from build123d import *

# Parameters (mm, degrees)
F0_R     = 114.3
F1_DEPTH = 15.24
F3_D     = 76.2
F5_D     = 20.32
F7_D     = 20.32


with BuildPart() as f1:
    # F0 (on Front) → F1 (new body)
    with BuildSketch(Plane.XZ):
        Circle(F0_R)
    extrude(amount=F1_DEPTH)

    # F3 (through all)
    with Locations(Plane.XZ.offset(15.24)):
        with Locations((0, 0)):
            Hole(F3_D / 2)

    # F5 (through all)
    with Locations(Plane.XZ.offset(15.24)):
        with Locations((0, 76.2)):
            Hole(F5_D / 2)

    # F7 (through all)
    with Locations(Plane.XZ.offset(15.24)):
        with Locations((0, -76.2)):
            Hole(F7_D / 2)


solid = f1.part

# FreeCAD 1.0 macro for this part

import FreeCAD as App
import Part
import Sketcher
Q = App.Units.Quantity

doc = App.newDocument("Part")
body = doc.addObject("PartDesign::Body", "Body")

# Sketch on XZ plane
sketch1 = doc.addObject("Sketcher::SketchObject", "Sketch")
body.addObject(sketch1)
sketch1.AttachmentSupport = (doc.XZ_Plane, [""])
sketch1.MapMode = "FlatFace"
sketch1.addGeometry(Part.Circle(App.Vector(0, 0, 0), App.Vector(0, 0, 1), 114.3), False)
sketch1.addConstraint(Sketcher.Constraint("Coincident", 0, 3, -1, 1))
sketch1.addConstraint(Sketcher.Constraint("Diameter", 0, Q("9 in")))
pad1 = doc.addObject("PartDesign::Pad", "Pad")
body.addObject(pad1)
pad1.Profile = sketch1
pad1.Length = Q("0.6 in")

# Sketch on XZ plane
sketch2 = doc.addObject("Sketcher::SketchObject", "Sketch001")
body.addObject(sketch2)
sketch2.AttachmentSupport = (doc.XZ_Plane, [""])
sketch2.MapMode = "FlatFace"
sketch2.AttachmentOffset = App.Placement(App.Vector(0, 0, 0.6 * 25.4), App.Rotation())
sketch2.addGeometry(Part.Circle(App.Vector(0, 0, 0), App.Vector(0, 0, 1), 38.1), False)
sketch2.addConstraint(Sketcher.Constraint("Coincident", 0, 3, -1, 1))
sketch2.addConstraint(Sketcher.Constraint("Diameter", 0, Q("3 in")))
doc.recompute()
hole = doc.addObject("PartDesign::Hole", "Hole")
body.addObject(hole)
hole.Profile = sketch2
hole.ThreadType = "None"
hole.Diameter = Q("3 in")
hole.DepthType = "ThroughAll"

# Sketch on XZ plane
sketch3 = doc.addObject("Sketcher::SketchObject", "Sketch002")
body.addObject(sketch3)
sketch3.AttachmentSupport = (doc.XZ_Plane, [""])
sketch3.MapMode = "FlatFace"
sketch3.AttachmentOffset = App.Placement(App.Vector(0, 0, 0.6 * 25.4), App.Rotation())
sketch3.addGeometry(Part.Circle(App.Vector(0, 76.2, 0), App.Vector(0, 0, 1), 10.16), False)
sketch3.addConstraint(Sketcher.Constraint("PointOnObject", 0, 3, -2))
sketch3.addConstraint(Sketcher.Constraint("Diameter", 0, Q("0.8 in")))
sketch3.addConstraint(Sketcher.Constraint("DistanceY", -1, 1, 0, 3, Q("3 in")))
doc.recompute()
hole2 = doc.addObject("PartDesign::Hole", "Hole001")
body.addObject(hole2)
hole2.Profile = sketch3
hole2.ThreadType = "None"
hole2.Diameter = Q("0.8 in")
hole2.DepthType = "ThroughAll"

# Sketch on XZ plane
sketch4 = doc.addObject("Sketcher::SketchObject", "Sketch003")
body.addObject(sketch4)
sketch4.AttachmentSupport = (doc.XZ_Plane, [""])
sketch4.MapMode = "FlatFace"
sketch4.AttachmentOffset = App.Placement(App.Vector(0, 0, 0.6 * 25.4), App.Rotation())
sketch4.addGeometry(Part.Circle(App.Vector(0, -76.2, 0), App.Vector(0, 0, 1), 10.16), False)
sketch4.addConstraint(Sketcher.Constraint("PointOnObject", 0, 3, -2))
sketch4.addConstraint(Sketcher.Constraint("Diameter", 0, Q("0.8 in")))
sketch4.addConstraint(Sketcher.Constraint("DistanceY", 0, 3, -1, 1, Q("3 in")))
doc.recompute()
hole3 = doc.addObject("PartDesign::Hole", "Hole002")
body.addObject(hole3)
hole3.Profile = sketch4
hole3.ThreadType = "None"
hole3.Diameter = Q("0.8 in")
hole3.DepthType = "ThroughAll"

doc.recompute()
